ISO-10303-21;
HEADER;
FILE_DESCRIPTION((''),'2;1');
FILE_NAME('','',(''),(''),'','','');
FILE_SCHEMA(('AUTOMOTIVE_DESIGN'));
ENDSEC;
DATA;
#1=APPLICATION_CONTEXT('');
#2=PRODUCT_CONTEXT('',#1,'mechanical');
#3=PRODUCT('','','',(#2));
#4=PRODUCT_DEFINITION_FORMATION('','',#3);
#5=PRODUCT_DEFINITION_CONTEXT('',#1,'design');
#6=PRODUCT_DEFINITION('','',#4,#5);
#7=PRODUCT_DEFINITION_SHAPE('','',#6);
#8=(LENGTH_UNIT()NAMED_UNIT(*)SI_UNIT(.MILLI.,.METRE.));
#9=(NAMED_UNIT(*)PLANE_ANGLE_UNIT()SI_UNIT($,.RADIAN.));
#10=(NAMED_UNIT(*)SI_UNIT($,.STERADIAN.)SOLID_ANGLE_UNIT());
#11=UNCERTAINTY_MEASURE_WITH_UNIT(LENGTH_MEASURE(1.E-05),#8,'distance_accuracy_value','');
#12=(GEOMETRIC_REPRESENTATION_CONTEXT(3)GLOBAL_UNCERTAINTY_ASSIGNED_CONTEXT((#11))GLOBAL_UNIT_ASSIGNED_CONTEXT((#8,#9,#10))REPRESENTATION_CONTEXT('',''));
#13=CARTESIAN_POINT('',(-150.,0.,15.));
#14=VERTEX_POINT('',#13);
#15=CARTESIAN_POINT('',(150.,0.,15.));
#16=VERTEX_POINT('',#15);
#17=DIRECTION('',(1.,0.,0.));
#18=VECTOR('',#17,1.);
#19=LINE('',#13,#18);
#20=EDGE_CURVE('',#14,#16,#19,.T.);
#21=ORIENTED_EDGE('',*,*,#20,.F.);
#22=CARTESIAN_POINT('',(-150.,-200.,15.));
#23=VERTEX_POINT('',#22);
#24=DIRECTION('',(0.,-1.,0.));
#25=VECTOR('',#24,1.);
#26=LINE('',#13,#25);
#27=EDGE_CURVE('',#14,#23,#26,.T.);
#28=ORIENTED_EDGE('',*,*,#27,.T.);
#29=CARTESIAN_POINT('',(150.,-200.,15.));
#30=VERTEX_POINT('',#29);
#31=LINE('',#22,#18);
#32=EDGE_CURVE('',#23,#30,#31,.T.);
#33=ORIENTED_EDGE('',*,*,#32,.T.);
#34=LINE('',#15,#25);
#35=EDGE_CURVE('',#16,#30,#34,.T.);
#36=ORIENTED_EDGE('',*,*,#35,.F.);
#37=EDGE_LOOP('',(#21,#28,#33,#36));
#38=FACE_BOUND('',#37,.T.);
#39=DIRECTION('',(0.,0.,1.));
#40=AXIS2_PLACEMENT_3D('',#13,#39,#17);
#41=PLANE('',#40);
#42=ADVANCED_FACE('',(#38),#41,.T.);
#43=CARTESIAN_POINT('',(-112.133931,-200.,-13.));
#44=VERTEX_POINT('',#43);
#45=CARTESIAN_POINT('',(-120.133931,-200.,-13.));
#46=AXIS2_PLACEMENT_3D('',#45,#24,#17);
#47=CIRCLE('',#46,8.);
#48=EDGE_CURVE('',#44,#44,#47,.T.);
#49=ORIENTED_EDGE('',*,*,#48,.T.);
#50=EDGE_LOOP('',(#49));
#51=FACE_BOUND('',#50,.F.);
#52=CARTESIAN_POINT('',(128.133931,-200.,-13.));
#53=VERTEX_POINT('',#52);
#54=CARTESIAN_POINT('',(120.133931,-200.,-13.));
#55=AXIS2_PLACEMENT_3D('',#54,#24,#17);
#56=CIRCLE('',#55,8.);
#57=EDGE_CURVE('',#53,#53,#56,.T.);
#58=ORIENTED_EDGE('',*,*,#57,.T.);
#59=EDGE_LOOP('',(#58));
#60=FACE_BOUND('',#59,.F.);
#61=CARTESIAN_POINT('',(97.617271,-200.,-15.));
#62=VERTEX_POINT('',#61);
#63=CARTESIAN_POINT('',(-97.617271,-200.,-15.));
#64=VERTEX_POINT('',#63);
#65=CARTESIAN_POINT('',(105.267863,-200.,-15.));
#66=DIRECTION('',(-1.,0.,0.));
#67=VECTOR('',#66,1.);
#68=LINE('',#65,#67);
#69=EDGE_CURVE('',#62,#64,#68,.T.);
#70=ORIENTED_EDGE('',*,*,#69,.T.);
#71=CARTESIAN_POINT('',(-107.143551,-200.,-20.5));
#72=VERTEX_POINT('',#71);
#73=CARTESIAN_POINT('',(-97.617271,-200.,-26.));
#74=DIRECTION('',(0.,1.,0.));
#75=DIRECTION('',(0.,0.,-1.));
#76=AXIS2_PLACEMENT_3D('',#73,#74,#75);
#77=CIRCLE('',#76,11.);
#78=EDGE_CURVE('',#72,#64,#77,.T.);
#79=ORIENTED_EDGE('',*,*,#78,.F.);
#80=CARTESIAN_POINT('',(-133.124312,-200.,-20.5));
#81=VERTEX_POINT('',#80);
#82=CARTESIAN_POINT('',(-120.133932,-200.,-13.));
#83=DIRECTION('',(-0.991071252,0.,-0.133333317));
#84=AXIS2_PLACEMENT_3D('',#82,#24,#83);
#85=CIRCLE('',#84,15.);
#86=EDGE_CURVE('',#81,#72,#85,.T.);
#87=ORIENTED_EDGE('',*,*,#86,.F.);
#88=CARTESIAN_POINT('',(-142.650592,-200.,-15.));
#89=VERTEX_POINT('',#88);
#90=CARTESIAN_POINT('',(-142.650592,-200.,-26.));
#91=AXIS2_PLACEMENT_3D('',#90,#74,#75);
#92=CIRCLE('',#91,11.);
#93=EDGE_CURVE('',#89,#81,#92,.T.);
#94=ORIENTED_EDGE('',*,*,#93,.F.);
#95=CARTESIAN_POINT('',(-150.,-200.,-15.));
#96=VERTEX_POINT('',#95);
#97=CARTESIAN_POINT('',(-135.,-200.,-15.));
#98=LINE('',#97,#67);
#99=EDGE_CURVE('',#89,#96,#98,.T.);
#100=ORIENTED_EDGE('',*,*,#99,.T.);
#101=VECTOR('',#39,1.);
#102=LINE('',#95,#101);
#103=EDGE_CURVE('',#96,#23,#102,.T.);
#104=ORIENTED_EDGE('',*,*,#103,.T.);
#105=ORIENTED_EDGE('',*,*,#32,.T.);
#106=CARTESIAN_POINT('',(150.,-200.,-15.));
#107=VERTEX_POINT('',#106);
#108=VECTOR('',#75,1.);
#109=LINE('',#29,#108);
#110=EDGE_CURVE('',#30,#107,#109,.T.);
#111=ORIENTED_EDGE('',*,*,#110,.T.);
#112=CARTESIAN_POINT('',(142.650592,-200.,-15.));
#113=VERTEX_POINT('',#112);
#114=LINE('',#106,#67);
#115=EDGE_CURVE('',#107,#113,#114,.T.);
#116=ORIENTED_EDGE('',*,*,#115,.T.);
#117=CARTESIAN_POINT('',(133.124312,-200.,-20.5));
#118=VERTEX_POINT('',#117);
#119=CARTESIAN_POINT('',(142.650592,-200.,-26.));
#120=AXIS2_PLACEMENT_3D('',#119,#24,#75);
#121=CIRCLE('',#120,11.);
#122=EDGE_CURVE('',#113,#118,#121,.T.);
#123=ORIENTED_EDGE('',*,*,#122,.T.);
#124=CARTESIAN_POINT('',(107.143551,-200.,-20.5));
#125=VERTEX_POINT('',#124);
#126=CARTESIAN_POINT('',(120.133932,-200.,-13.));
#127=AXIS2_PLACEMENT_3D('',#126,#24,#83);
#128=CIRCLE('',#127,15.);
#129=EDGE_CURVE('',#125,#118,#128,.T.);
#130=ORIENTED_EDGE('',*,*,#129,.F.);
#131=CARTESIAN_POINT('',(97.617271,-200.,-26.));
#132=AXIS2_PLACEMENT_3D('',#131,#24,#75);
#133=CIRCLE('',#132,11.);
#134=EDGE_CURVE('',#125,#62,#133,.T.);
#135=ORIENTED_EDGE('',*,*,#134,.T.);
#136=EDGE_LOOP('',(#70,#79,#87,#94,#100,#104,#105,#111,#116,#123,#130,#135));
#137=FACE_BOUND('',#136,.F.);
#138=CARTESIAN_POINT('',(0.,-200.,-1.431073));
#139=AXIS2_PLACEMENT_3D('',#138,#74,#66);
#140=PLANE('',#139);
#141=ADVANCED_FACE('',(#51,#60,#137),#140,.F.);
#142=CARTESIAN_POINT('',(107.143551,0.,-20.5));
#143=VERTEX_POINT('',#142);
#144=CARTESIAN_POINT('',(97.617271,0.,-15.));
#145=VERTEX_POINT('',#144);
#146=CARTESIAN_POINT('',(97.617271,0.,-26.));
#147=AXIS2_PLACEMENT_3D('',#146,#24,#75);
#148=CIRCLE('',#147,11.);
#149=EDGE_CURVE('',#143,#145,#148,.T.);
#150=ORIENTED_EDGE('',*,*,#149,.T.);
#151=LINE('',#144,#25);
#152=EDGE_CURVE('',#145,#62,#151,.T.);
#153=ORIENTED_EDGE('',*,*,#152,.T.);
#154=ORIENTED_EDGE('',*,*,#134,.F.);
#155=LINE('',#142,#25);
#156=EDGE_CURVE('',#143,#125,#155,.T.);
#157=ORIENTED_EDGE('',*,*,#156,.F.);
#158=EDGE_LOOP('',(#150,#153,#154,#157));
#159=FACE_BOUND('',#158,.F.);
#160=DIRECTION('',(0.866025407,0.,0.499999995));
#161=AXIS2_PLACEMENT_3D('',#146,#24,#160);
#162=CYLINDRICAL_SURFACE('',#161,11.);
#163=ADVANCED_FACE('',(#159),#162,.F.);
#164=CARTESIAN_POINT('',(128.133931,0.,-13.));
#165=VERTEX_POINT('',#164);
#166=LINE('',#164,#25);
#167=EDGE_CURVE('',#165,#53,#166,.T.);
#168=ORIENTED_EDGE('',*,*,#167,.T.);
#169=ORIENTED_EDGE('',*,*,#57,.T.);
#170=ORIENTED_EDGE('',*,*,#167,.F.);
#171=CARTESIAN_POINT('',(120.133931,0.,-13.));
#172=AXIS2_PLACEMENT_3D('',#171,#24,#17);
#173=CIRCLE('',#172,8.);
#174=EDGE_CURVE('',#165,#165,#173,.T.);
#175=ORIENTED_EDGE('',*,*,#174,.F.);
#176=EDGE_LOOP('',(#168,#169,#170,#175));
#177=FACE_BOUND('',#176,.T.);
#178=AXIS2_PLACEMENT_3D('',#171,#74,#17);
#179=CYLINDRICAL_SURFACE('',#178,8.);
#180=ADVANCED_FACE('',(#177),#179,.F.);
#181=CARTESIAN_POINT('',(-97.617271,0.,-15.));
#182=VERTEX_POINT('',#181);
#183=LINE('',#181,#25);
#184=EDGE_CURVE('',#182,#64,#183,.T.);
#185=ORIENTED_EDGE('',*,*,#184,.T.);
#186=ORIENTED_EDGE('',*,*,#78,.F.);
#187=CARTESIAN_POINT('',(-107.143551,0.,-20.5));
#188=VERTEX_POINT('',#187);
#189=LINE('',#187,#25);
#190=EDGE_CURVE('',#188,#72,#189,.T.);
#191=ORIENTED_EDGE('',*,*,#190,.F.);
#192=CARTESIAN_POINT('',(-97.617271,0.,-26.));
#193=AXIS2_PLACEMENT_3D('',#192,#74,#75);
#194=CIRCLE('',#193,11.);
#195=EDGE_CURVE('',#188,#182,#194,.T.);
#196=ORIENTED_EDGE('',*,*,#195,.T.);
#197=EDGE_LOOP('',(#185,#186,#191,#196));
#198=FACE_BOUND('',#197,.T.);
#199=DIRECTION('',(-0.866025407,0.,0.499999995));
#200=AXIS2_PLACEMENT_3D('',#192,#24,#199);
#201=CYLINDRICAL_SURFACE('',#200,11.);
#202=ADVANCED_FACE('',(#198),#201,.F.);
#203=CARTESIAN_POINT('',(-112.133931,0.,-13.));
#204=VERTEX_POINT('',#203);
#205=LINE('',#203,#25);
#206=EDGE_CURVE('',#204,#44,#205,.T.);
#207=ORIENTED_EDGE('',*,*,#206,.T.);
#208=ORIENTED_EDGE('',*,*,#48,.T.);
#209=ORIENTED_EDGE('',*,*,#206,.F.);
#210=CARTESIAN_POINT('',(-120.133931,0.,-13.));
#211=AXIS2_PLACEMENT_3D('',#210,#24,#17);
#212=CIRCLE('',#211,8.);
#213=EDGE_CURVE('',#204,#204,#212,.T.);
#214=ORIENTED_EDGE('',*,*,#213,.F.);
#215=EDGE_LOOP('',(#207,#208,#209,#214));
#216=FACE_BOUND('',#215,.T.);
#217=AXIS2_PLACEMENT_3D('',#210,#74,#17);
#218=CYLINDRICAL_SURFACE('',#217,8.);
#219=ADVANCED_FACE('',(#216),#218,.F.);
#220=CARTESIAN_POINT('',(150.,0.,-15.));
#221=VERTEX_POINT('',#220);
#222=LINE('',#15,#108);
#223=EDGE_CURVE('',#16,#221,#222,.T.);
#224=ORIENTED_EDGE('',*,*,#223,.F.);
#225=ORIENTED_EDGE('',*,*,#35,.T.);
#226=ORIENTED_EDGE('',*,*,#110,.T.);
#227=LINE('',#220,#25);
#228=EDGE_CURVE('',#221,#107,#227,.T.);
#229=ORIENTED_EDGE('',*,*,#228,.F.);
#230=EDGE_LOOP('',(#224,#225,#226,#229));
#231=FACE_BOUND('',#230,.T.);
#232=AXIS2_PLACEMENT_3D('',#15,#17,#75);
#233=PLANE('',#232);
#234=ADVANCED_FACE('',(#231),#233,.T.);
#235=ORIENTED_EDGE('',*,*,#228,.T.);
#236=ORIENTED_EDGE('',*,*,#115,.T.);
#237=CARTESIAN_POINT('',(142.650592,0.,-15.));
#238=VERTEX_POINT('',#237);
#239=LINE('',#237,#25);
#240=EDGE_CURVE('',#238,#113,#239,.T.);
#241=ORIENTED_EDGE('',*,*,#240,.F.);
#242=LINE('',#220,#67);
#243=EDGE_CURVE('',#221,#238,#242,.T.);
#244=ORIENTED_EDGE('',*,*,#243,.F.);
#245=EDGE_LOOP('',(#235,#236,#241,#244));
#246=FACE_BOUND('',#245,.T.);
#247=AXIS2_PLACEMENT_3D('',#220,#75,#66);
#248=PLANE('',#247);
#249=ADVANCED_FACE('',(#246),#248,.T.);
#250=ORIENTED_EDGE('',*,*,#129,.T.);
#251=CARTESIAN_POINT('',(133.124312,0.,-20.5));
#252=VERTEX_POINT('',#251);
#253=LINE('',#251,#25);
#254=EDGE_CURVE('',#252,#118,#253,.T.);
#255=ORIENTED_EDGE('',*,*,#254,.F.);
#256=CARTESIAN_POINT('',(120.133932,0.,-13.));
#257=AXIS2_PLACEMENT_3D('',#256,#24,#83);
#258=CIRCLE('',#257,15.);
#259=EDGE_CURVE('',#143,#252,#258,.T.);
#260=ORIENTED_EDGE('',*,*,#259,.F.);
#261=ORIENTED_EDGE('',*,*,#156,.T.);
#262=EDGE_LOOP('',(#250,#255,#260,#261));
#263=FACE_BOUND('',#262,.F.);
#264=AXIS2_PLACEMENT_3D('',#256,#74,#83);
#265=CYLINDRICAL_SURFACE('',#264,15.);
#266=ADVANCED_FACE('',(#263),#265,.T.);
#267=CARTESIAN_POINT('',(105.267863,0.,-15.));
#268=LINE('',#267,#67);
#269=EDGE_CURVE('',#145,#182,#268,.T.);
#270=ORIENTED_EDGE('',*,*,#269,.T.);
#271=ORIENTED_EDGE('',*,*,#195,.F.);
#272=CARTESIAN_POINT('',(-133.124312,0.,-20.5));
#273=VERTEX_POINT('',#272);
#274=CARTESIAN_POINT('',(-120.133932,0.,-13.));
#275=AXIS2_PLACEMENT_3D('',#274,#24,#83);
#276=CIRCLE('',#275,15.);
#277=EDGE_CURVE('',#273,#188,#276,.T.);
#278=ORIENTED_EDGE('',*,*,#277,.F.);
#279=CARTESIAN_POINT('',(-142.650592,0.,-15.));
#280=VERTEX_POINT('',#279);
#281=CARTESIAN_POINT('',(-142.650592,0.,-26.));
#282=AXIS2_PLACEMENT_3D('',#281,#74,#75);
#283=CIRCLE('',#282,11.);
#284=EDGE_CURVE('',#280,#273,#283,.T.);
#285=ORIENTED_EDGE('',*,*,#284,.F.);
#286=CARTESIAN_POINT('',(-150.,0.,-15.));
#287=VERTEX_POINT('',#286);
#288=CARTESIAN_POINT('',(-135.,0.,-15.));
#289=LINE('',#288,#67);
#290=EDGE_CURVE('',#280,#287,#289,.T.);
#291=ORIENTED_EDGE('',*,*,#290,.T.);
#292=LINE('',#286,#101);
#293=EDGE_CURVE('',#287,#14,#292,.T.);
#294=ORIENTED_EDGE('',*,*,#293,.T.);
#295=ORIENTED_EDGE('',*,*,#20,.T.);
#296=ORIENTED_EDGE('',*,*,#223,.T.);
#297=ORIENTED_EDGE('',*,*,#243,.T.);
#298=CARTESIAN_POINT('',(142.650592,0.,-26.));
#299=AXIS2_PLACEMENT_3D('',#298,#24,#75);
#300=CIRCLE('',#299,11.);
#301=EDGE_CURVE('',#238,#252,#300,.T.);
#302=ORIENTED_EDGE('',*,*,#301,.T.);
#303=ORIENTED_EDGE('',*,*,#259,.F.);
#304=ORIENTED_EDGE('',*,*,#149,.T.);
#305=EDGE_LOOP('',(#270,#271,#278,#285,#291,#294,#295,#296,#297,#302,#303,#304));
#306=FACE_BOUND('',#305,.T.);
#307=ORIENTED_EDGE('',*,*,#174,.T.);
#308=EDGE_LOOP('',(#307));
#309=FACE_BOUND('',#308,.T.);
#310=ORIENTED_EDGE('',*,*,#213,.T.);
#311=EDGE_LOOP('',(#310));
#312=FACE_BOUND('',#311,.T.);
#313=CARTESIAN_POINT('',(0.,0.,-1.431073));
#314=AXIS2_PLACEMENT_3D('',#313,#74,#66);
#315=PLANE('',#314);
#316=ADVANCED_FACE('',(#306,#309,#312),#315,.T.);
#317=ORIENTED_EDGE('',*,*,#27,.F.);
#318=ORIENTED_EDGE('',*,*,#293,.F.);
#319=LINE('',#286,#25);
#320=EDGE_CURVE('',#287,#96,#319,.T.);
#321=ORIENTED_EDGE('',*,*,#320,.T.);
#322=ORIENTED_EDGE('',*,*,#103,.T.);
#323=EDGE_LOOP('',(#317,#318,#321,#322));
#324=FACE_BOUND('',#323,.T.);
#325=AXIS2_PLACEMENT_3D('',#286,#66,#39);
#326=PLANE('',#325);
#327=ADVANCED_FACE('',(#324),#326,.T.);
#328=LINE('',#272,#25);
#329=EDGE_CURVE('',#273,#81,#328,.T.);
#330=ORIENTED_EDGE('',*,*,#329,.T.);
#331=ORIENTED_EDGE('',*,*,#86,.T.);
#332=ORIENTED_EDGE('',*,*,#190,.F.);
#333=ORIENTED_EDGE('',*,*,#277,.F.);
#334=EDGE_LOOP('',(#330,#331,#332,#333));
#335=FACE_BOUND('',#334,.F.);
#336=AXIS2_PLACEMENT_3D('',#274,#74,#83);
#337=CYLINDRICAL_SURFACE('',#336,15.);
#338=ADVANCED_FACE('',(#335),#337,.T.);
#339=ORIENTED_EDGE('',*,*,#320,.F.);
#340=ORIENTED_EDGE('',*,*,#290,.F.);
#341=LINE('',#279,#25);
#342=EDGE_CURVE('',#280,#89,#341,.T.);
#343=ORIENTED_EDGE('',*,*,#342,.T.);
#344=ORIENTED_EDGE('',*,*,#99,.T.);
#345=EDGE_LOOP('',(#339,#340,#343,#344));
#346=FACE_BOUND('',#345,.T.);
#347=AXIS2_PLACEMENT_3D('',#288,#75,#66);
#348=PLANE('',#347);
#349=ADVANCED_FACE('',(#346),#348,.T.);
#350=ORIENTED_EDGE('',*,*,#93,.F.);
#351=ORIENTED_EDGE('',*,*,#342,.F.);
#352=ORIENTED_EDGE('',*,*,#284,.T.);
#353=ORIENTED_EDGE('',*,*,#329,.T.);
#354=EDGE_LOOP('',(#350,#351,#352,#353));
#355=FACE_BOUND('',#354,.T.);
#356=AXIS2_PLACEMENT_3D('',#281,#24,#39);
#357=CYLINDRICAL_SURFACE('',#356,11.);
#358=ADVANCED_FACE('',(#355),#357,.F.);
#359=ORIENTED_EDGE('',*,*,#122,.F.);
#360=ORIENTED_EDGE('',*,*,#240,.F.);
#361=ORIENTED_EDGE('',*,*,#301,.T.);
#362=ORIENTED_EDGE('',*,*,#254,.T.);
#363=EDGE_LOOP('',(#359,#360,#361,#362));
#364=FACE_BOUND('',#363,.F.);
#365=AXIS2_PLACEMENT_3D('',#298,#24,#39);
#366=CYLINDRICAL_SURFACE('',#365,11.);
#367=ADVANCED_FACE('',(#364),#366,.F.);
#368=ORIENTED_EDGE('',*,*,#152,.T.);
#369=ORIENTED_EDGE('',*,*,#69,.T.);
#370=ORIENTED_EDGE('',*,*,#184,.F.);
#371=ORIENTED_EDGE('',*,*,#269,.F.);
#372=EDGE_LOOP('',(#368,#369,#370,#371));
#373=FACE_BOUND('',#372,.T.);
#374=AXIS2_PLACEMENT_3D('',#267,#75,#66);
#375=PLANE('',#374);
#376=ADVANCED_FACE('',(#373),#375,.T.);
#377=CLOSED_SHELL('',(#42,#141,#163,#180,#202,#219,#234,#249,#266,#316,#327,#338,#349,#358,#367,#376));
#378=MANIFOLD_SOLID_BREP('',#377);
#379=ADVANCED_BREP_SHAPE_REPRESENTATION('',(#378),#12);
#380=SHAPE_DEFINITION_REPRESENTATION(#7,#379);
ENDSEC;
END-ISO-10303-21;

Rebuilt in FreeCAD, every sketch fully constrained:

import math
import FreeCAD as App
import Part
import Sketcher


def edges_at(feature, points):
    """Names of the edges that pass closest to the given points."""
    edges = feature.Shape.Edges
    near = lambda p: min(range(len(edges)), key=lambda i: edges[i].distToShape(Part.Vertex(*p))[0])
    return sorted({f"Edge{near(p) + 1}" for p in points})

doc = App.newDocument("Part")
body = doc.addObject("PartDesign::Body", "Body")

sketch1 = body.newObject("Sketcher::SketchObject", "Sketch")
sketch1.AttachmentSupport = (doc.getObject("XZ_Plane"), [""])
sketch1.MapMode = "FlatFace"
sketch1.addGeometry([
    Part.LineSegment(App.Vector(150, 15, 0), App.Vector(-150, 15, 0)),
    Part.LineSegment(App.Vector(-150, 15, 0), App.Vector(-150, -15, 0)),
    Part.LineSegment(App.Vector(-150, -15, 0), App.Vector(-135, -15, 0)),
    Part.ArcOfCircle(Part.Circle(App.Vector(-120, -13, 0), App.Vector(0, 0, 1), 15), math.radians(-172), math.radians(-8)),
    Part.LineSegment(App.Vector(-105, -15, 0), App.Vector(105, -15, 0)),
    Part.ArcOfCircle(Part.Circle(App.Vector(120, -13, 0), App.Vector(0, 0, 1), 15), math.radians(-172), math.radians(-8)),
    Part.LineSegment(App.Vector(135, -15, 0), App.Vector(150, -15, 0)),
    Part.LineSegment(App.Vector(150, -15, 0), App.Vector(150, 15, 0)),
    Part.Circle(App.Vector(120, -13, 0), App.Vector(0, 0, 1), 8),
    Part.Circle(App.Vector(-120, -13, 0), App.Vector(0, 0, 1), 8),
], False)
sketch1.addConstraint([
    Sketcher.Constraint("Coincident", 0, 2, 1, 1),
    Sketcher.Constraint("Coincident", 1, 2, 2, 1),
    Sketcher.Constraint("Coincident", 2, 2, 3, 1),
    Sketcher.Constraint("Coincident", 3, 2, 4, 1),
    Sketcher.Constraint("Coincident", 4, 2, 5, 1),
    Sketcher.Constraint("Coincident", 5, 2, 6, 1),
    Sketcher.Constraint("Coincident", 6, 2, 7, 1),
    Sketcher.Constraint("Coincident", 7, 2, 0, 1),
    Sketcher.Constraint("Horizontal", 0),
    Sketcher.Constraint("Vertical", 1),
    Sketcher.Constraint("Horizontal", 2),
    Sketcher.Constraint("Horizontal", 4),
    Sketcher.Constraint("Horizontal", 6),
    Sketcher.Constraint("Vertical", 7),
    Sketcher.Constraint("Coincident", 8, 3, 5, 3),
    Sketcher.Constraint("Coincident", 9, 3, 3, 3),
    Sketcher.Constraint("Equal", 3, 5),
    Sketcher.Constraint("Equal", 8, 9),
    Sketcher.Constraint("Symmetric", 0, 2, 6, 2, -1, 1),
    Sketcher.Constraint("Symmetric", 3, 3, 5, 3, -2),
    Sketcher.Constraint("Horizontal", 2, 2, 3, 2),
    Sketcher.Constraint("Horizontal", 4, 2, 5, 2),
    Sketcher.Constraint("Diameter", 8, 16.0),
    Sketcher.Constraint("Radius", 3, 15.0),
    Sketcher.Constraint("DistanceX", 0, 2, 0, 1, 300.0),
    Sketcher.Constraint("DistanceX", 2, 1, 2, 2, 15.0),
    Sketcher.Constraint("DistanceY", 1, 2, 1, 1, 30.0),
    Sketcher.Constraint("DistanceY", 3, 3, -1, 1, 13.0),
])
pad1 = body.newObject("PartDesign::Pad", "Pad")
pad1.Profile = sketch1
pad1.Length = 200
doc.recompute()

fillet = body.newObject("PartDesign::Fillet", "Fillet")
fillet.Base = (pad1, edges_at(pad1, [
    (-135, -100, -15),
    (-105.268, -100, -15),
    (105.268, -100, -15),
    (135, -100, -15),
]))
fillet.Radius = 11

doc.recompute()
